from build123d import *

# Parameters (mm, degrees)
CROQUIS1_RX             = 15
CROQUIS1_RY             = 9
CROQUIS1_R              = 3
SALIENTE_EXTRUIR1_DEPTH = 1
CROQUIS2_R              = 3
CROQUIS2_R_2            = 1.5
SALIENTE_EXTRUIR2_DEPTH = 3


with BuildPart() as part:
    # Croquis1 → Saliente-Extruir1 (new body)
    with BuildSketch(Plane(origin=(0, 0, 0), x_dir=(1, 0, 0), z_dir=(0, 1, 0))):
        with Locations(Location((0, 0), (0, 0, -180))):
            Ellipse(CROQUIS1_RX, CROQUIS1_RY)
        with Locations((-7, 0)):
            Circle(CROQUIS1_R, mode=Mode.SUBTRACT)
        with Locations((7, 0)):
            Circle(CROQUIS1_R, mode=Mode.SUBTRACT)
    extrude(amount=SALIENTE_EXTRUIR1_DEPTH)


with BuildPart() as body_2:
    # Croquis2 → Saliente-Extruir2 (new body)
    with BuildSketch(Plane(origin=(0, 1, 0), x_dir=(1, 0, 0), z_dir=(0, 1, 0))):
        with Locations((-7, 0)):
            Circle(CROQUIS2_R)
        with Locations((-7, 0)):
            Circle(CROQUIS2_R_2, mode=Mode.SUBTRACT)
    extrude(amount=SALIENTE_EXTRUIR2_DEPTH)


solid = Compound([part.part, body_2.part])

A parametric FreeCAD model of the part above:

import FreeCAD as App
import Part
import Sketcher

V = App.Vector

doc = App.newDocument("Part")
body = doc.addObject("PartDesign::Body", "Body")

# Sketch on XZ plane
sketch1 = doc.addObject("Sketcher::SketchObject", "Sketch")
body.addObject(sketch1)
sketch1.AttachmentSupport = (doc.XZ_Plane, [""])
sketch1.MapMode = "FlatFace"
sketch1.addGeometry([
    Part.Ellipse(V(-15, 0, 0), V(0, -9, 0), V(0, 0, 0)),
    Part.Circle(V(-7, 0, 0), V(0, 0, 1), 3),
    Part.Circle(V(7, 0, 0), V(0, 0, 1), 3),
], False)
sketch1.addConstraint([
    Sketcher.Constraint("Block", 0),
    Sketcher.Constraint("Equal", 1, 2),
    Sketcher.Constraint("Symmetric", 1, 3, 2, 3, -1, 1),
    Sketcher.Constraint("PointOnObject", 1, 3, -1),
    Sketcher.Constraint("Diameter", 1, 6.0),
    Sketcher.Constraint("DistanceX", 1, 3, -1, 1, 7.0),
])
pad1 = doc.addObject("PartDesign::Pad", "Pad")
body.addObject(pad1)
pad1.Profile = sketch1
pad1.Length = 1
pad1.Reversed = True
body2 = doc.addObject("PartDesign::Body", "Body001")

# Sketch on XZ plane
sketch2 = doc.addObject("Sketcher::SketchObject", "Sketch001")
body2.addObject(sketch2)
sketch2.AttachmentSupport = (doc.getObject("XZ_Plane001"), [""])
sketch2.MapMode = "FlatFace"
sketch2.AttachmentOffset = App.Placement(V(0, 0, -1), App.Rotation())
sketch2.addGeometry([
    Part.Circle(V(-7, 0, 0), V(0, 0, 1), 3),
    Part.Circle(V(-7, 0, 0), V(0, 0, 1), 1.5),
], False)
sketch2.addConstraint([
    Sketcher.Constraint("Coincident", 1, 3, 0, 3),
    Sketcher.Constraint("PointOnObject", 0, 3, -1),
    Sketcher.Constraint("Diameter", 0, 6.0),
    Sketcher.Constraint("Diameter", 1, 3.0),
    Sketcher.Constraint("DistanceX", 0, 3, -1, 1, 7.0),
])
pad2 = doc.addObject("PartDesign::Pad", "Pad001")
body2.addObject(pad2)
pad2.Profile = sketch2
pad2.Length = 3
pad2.Reversed = True

doc.recompute()
